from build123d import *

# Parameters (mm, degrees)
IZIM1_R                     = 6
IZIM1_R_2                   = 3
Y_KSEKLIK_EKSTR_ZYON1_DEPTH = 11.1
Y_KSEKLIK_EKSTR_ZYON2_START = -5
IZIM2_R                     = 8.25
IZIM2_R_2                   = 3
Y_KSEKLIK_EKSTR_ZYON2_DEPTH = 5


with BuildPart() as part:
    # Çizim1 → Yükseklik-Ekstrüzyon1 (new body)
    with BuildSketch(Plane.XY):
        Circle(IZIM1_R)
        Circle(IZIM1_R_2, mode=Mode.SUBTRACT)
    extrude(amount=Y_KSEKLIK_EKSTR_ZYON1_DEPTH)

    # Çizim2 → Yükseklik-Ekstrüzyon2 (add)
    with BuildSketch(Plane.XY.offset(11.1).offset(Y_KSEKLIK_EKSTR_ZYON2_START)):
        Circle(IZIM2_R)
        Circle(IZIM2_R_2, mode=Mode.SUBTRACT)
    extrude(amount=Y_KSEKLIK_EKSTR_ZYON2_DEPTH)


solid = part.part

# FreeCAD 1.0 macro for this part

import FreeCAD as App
import Part
import Sketcher
from FreeCAD import Vector

doc = App.newDocument("Part")
body = doc.addObject("PartDesign::Body", "Body")

# Sketch on XY plane
sketch1 = body.newObject("Sketcher::SketchObject", "Sketch")
sketch1.AttachmentSupport = (doc.getObject("XY_Plane"), [""])
sketch1.MapMode = "FlatFace"
sketch1.addGeometry([
    Part.Circle(Vector(0, 0, 0), Vector(0, 0, 1), 6),
    Part.Circle(Vector(0, 0, 0), Vector(0, 0, 1), 3),
], False)
sketch1.addConstraint([
    Sketcher.Constraint("Coincident", 0, 3, -1, 1),
    Sketcher.Constraint("Coincident", 1, 3, -1, 1),
    Sketcher.Constraint("Diameter", 0, 12.0),
    Sketcher.Constraint("Diameter", 1, 6.0),
])
pad1 = body.newObject("PartDesign::Pad", "Pad")
pad1.Profile = sketch1
pad1.Length = 11.1

# Sketch on XY plane
sketch2 = body.newObject("Sketcher::SketchObject", "Sketch001")
sketch2.AttachmentSupport = (doc.getObject("XY_Plane"), [""])
sketch2.MapMode = "FlatFace"
sketch2.AttachmentOffset = App.Placement(Vector(0, 0, 6.1), App.Rotation())
sketch2.addGeometry([
    Part.Circle(Vector(0, 0, 0), Vector(0, 0, 1), 8.2),
    Part.Circle(Vector(0, 0, 0), Vector(0, 0, 1), 3),
], False)
sketch2.addConstraint([
    Sketcher.Constraint("Coincident", 0, 3, -1, 1),
    Sketcher.Constraint("Coincident", 1, 3, -1, 1),
    Sketcher.Constraint("Diameter", 1, 6.0),
    Sketcher.Constraint("Diameter", 0, 16.5),
])
pad2 = body.newObject("PartDesign::Pad", "Pad001")
pad2.Profile = sketch2
pad2.Length = 5

doc.recompute()
